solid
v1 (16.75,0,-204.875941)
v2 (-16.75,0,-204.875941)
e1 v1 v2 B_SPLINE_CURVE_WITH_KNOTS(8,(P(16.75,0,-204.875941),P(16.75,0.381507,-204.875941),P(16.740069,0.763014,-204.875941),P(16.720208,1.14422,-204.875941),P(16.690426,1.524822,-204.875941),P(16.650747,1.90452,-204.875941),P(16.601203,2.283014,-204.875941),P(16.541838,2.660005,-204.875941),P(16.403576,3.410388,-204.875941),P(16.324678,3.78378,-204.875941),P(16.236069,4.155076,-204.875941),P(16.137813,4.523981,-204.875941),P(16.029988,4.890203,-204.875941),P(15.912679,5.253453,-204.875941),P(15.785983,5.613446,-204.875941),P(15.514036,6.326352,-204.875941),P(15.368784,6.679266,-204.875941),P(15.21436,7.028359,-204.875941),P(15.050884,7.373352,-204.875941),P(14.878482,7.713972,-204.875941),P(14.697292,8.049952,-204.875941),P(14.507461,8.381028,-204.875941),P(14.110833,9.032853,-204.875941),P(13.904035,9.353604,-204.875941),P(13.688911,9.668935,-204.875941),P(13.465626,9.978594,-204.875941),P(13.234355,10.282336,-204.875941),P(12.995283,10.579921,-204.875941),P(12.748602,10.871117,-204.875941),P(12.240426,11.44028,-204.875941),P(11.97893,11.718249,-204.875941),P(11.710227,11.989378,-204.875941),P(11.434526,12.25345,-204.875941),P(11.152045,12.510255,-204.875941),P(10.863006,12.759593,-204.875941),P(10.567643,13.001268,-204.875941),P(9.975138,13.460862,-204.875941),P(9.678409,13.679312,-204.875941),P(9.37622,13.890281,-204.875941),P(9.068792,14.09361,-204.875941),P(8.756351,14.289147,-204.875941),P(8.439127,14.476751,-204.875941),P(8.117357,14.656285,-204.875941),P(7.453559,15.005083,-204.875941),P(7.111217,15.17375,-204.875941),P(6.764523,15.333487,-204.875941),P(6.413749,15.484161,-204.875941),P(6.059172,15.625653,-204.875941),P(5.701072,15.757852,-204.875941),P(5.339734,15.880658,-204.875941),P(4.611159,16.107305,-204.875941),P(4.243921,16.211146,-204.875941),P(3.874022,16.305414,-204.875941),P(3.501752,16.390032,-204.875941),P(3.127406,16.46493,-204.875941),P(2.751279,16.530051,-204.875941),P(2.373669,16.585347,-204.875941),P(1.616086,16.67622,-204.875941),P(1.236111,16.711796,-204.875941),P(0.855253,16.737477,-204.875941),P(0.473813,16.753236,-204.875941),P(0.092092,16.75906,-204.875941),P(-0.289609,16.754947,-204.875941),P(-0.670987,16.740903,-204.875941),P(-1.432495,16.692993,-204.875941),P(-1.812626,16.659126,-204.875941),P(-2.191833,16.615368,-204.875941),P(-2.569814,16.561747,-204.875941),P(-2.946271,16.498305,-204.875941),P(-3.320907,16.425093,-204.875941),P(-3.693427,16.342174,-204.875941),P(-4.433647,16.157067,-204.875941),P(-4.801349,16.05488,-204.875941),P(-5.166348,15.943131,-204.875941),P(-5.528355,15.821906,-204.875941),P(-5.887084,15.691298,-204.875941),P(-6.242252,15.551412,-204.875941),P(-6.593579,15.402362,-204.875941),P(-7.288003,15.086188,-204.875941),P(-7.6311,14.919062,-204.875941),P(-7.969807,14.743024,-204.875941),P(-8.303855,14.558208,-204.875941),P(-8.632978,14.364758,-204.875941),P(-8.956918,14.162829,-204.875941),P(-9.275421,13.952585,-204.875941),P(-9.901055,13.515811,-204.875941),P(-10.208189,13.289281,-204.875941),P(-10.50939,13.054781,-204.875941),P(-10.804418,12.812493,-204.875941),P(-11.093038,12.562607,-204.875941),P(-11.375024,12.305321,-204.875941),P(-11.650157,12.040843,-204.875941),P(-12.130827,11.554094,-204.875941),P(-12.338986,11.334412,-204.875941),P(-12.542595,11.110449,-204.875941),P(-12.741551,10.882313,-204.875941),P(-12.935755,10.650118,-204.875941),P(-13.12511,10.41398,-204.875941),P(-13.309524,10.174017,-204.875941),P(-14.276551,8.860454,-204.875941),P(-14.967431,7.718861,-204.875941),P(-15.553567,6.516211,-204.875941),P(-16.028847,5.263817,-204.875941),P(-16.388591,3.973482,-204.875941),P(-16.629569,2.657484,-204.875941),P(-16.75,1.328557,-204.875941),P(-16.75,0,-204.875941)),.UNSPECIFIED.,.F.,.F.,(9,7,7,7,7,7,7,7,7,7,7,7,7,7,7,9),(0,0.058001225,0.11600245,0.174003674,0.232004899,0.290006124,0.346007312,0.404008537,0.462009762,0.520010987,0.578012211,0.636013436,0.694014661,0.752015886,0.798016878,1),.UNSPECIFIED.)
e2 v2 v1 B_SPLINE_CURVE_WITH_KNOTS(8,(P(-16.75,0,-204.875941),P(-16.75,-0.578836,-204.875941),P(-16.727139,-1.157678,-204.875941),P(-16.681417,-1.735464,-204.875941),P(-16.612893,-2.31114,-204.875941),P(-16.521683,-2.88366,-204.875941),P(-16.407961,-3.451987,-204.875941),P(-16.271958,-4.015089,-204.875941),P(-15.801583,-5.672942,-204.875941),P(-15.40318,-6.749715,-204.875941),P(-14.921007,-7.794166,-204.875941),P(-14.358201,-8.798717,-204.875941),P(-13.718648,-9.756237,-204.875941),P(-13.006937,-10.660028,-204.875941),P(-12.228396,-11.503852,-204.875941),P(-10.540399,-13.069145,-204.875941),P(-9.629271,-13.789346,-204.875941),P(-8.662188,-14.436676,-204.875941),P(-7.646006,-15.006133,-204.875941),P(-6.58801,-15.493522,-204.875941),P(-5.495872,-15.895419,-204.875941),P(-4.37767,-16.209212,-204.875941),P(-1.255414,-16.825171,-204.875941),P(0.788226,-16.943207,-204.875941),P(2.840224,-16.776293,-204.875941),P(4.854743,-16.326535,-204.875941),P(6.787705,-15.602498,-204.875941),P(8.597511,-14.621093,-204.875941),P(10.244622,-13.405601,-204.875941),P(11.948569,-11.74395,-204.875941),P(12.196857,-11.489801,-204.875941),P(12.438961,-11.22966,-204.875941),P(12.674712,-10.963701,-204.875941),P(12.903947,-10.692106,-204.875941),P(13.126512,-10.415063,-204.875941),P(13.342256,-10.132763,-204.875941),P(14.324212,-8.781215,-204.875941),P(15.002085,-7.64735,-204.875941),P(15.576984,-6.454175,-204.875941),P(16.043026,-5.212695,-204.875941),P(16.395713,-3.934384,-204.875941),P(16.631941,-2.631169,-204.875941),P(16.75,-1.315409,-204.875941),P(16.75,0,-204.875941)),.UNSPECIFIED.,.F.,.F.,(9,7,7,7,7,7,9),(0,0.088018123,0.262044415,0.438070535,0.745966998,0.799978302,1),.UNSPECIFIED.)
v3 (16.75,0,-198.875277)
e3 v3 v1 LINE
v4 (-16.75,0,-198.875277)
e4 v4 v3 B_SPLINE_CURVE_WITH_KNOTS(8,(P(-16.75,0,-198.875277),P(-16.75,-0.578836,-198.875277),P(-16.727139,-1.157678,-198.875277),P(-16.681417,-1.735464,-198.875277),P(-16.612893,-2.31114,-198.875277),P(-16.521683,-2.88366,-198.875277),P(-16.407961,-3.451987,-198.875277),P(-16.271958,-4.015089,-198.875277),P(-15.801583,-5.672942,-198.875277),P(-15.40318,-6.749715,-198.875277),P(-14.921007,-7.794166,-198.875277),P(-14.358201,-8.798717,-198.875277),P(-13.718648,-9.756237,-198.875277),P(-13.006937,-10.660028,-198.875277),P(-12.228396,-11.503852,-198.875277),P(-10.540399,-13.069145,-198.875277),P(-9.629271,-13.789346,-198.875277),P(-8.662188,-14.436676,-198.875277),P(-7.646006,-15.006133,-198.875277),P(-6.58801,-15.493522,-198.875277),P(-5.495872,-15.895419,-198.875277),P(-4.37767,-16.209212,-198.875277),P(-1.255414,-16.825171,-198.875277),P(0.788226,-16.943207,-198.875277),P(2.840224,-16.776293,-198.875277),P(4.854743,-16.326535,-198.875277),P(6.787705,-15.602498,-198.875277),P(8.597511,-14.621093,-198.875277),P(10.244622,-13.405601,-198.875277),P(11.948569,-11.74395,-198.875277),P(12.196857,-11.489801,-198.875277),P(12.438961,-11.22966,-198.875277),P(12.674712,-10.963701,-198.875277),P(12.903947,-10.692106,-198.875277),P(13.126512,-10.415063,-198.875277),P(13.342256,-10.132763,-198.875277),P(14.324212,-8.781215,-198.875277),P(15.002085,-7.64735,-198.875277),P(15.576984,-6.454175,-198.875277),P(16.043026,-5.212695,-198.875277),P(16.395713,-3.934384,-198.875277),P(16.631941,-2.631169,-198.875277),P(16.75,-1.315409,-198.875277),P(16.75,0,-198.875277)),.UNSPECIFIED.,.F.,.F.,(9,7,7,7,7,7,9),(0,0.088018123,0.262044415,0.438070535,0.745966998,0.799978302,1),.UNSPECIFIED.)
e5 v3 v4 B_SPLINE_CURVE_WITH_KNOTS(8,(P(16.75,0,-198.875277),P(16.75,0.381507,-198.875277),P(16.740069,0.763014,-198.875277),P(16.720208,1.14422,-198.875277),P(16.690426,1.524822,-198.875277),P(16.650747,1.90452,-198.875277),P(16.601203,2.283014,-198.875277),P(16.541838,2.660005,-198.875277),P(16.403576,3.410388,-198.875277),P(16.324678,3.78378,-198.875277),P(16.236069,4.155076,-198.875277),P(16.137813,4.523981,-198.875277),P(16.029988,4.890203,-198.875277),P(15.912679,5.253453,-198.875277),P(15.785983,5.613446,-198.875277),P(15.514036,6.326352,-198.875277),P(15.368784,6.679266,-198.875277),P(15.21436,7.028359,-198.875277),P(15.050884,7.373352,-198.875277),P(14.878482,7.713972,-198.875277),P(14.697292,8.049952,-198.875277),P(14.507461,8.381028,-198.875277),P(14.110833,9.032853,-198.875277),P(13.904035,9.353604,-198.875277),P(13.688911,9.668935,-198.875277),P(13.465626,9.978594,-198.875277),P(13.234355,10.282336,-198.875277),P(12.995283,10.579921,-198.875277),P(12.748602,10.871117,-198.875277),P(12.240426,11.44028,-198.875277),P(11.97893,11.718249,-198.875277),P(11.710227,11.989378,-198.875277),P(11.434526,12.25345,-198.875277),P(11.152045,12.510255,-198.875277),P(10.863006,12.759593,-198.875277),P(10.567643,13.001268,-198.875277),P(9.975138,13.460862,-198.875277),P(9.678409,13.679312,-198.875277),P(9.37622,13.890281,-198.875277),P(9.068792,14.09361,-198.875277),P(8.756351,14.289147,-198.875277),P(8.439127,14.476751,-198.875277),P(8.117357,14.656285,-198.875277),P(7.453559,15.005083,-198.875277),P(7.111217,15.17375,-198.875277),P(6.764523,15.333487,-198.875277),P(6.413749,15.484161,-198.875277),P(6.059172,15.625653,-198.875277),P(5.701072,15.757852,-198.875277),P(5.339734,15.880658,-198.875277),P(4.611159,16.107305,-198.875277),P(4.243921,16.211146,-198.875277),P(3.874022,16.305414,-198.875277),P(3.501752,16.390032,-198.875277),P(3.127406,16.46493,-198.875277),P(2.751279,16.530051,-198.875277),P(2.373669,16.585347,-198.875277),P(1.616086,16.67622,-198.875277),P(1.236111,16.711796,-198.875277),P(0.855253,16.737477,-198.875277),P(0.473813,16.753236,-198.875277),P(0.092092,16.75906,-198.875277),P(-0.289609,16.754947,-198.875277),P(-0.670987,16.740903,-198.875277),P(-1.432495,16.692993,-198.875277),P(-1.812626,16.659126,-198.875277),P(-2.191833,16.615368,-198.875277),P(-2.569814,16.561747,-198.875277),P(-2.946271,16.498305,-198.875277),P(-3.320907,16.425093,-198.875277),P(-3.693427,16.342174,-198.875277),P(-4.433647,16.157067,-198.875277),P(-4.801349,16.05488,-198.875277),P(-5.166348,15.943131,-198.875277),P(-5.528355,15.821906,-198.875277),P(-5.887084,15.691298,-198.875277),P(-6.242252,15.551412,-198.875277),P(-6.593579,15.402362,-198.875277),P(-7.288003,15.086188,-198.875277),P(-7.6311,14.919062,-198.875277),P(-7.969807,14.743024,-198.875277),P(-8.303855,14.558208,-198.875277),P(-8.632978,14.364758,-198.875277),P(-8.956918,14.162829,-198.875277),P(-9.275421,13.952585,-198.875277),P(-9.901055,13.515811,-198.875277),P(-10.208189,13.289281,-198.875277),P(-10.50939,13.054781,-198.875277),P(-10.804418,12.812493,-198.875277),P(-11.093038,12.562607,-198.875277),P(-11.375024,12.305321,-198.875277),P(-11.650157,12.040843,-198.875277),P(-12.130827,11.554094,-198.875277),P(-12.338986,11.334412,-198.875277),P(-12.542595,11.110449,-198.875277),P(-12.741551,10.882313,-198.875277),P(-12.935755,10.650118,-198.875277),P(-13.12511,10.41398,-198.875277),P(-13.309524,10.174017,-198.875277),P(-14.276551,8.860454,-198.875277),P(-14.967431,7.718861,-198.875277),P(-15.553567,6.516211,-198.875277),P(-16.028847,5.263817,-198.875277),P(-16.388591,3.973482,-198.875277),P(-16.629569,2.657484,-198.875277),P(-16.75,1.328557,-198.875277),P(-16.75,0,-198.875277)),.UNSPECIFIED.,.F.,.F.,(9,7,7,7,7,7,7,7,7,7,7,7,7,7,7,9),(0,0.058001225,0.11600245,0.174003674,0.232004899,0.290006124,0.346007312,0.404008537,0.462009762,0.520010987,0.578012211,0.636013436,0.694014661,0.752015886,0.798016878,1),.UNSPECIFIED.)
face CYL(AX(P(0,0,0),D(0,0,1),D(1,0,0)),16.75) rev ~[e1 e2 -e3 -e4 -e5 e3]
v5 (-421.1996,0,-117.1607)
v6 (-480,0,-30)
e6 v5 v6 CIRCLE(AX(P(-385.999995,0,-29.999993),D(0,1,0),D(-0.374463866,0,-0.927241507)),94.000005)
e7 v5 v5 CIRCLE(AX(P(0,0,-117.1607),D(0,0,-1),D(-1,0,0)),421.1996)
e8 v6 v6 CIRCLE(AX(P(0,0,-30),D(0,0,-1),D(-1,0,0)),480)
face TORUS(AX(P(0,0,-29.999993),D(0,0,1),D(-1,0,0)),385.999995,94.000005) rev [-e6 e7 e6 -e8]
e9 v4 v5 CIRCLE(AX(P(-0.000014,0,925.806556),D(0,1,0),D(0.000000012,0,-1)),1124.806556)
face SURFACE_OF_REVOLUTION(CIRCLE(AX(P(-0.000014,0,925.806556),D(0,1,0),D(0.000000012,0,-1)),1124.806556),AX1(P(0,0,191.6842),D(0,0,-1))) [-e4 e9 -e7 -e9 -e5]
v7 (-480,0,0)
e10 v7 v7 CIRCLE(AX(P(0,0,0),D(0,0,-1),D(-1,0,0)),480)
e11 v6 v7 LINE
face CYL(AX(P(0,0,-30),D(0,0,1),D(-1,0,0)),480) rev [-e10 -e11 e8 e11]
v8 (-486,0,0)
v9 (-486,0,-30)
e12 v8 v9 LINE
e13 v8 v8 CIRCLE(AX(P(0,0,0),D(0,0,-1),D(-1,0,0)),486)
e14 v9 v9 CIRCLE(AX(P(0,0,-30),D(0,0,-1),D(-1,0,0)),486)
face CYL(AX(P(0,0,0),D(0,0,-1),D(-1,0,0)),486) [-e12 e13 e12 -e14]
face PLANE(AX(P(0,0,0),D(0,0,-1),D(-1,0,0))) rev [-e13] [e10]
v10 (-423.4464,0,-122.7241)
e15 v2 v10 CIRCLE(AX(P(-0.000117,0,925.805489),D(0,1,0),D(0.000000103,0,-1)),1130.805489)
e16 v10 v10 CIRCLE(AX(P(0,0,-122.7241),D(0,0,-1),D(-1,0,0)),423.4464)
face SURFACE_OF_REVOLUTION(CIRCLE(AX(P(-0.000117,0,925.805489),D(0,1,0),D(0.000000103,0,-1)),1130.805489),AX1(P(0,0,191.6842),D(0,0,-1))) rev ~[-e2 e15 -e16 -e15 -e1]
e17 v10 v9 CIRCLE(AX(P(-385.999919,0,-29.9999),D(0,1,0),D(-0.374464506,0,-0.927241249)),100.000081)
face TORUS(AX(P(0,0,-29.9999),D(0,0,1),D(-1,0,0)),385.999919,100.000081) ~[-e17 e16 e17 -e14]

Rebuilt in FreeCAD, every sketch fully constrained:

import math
import FreeCAD as App
import Part
import Sketcher

doc = App.newDocument("Part")
params = doc.addObject("Spreadsheet::Sheet", "Params")
for row, (alias, value) in enumerate([
    ("sketch1_radius", "100 mm"),
    ("sketch1_width", "6 mm"),
    ("sketch1_height", "30 mm"),
    ("revolution_angle", "360 deg"),
    ("sketch2_diameter", "33.5 mm"),
], start=1):
    params.set(f"A{row}", alias)
    params.set(f"B{row}", "=" + value)
    params.setAlias(f"B{row}", alias)

body = doc.addObject("PartDesign::Body", "Body")

sketch1 = body.newObject("Sketcher::SketchObject", "Sketch")
sketch1.AttachmentSupport = (doc.getObject("XZ_Plane"), [""])
sketch1.MapMode = "FlatFace"
sketch1.addGeometry([
    Part.LineSegment(App.Vector(-486, -30, 0), App.Vector(-486, 0, 0)),
    Part.LineSegment(App.Vector(-486, 0, 0), App.Vector(-480, 0, 0)),
    Part.LineSegment(App.Vector(-480, 0, 0), App.Vector(-480, -30, 0)),
    Part.ArcOfCircle(Part.Circle(App.Vector(-386, -30, 0), App.Vector(0, 0, 1), 93.999997), math.radians(180), math.radians(248.008821)),
    Part.ArcOfCircle(Part.Circle(App.Vector(0, 925.8067, 0), App.Vector(0, 0, 1), 1124.8067), math.radians(-111.991188), math.radians(-90)),
    Part.LineSegment(App.Vector(0, -199, 0), App.Vector(0, -205, 0)),
    Part.ArcOfCircle(Part.Circle(App.Vector(-0.000117, 925.805489, 0), App.Vector(0, 0, 1), 1130.805489), math.radians(-111.991207), math.radians(-89.999994)),
    Part.ArcOfCircle(Part.Circle(App.Vector(-386, -30, 0), App.Vector(0, 0, 1), 99.999958), math.radians(180), math.radians(248.008802)),
], False)
sketch1.addConstraint([
    Sketcher.Constraint("Coincident", 0, 2, 1, 1),
    Sketcher.Constraint("Coincident", 1, 2, 2, 1),
    Sketcher.Constraint("Tangent", 2, 2, 3, 1),
    Sketcher.Constraint("Tangent", 3, 2, 4, 1),
    Sketcher.Constraint("Coincident", 4, 2, 5, 1),
    Sketcher.Constraint("Coincident", 5, 2, 6, 2),
    Sketcher.Constraint("Tangent", 6, 1, 7, 2),
    Sketcher.Constraint("Tangent", 7, 1, 0, 1),
    Sketcher.Constraint("Vertical", 0),
    Sketcher.Constraint("Horizontal", 1),
    Sketcher.Constraint("Vertical", 2),
    Sketcher.Constraint("Vertical", 5),
    Sketcher.Constraint("Coincident", 7, 3, 3, 3),
    Sketcher.Constraint("PointOnObject", 4, 3, -2),
    Sketcher.Constraint("PointOnObject", 6, 3, -2),
    Sketcher.Constraint("PointOnObject", 0, 2, -1),
    Sketcher.Constraint("PointOnObject", 5, 2, -2),
    Sketcher.Constraint("Equal", 1, 5),
    Sketcher.Constraint("Radius", 7, 100.0),
    Sketcher.Constraint("DistanceX", 1, 1, 1, 2, 6.0),
    Sketcher.Constraint("DistanceY", 0, 1, 0, 2, 30.0),
    Sketcher.Constraint("DistanceY", 5, 2, -1, 1, 205.0),
    Sketcher.Constraint("DistanceX", 3, 3, -1, 1, 386.0),
])
sketch1.setExpression("Constraints[18]", "Params.sketch1_radius")
sketch1.setExpression("Constraints[19]", "Params.sketch1_width")
sketch1.setExpression("Constraints[20]", "Params.sketch1_height")
revolution = body.newObject("PartDesign::Revolution", "Revolution")
revolution.Profile = sketch1
revolution.ReferenceAxis = (sketch1, ["V_Axis"])
revolution.setExpression("Angle", "Params.revolution_angle")

sketch2 = body.newObject("Sketcher::SketchObject", "Sketch001")
sketch2.AttachmentSupport = (doc.getObject("XY_Plane"), [""])
sketch2.MapMode = "FlatFace"
sketch2.addGeometry(Part.Circle(App.Vector(0, 0, 0), App.Vector(0, 0, 1), 16.75), False)
sketch2.addConstraint([
    Sketcher.Constraint("Coincident", 0, 3, -1, 1),
    Sketcher.Constraint("Diameter", 0, 33.5),
])
sketch2.setExpression("Constraints[1]", "Params.sketch2_diameter")
pocket1 = body.newObject("PartDesign::Pocket", "Pocket")
pocket1.Profile = sketch2
pocket1.Type = "ThroughAll"

doc.recompute()
